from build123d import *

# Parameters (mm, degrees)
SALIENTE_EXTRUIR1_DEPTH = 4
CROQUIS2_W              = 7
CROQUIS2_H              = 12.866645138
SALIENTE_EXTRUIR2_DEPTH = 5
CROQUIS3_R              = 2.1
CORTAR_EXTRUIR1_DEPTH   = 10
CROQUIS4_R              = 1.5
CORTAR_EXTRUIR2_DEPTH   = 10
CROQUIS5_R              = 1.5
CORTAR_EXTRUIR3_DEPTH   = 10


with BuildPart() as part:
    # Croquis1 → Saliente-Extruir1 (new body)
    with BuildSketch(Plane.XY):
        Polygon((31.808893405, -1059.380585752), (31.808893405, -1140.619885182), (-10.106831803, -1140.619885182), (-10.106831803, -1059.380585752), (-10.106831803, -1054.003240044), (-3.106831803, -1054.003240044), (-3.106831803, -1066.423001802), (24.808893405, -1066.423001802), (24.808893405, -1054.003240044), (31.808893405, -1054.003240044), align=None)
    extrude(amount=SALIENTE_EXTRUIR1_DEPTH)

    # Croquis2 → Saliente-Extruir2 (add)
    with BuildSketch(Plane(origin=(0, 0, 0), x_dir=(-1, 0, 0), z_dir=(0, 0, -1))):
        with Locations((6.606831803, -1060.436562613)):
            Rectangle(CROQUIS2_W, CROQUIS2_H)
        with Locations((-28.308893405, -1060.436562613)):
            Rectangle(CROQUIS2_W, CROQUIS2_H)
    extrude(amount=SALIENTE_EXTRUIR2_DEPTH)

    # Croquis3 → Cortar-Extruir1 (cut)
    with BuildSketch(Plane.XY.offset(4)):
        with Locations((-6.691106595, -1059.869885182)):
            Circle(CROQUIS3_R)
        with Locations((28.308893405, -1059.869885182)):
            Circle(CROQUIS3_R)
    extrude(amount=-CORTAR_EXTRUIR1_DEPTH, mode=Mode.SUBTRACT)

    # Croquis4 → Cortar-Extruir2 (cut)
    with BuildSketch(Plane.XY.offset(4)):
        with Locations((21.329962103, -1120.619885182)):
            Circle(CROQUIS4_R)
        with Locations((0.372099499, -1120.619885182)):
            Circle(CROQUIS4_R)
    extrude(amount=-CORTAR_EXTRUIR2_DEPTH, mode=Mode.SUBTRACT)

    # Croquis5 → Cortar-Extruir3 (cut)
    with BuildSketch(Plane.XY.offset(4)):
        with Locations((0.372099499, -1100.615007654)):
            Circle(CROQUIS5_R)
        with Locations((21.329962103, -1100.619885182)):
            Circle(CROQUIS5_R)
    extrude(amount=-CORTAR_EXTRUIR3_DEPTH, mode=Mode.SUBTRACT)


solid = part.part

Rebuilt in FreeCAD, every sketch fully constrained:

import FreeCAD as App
import Part
import Sketcher
from FreeCAD import Vector

doc = App.newDocument("Part")
body = doc.addObject("PartDesign::Body", "Body")

# Sketch on XY plane
sketch1 = doc.addObject("Sketcher::SketchObject", "Sketch")
body.addObject(sketch1)
sketch1.AttachmentSupport = (doc.XY_Plane, [""])
sketch1.MapMode = "FlatFace"
sketch1.addGeometry([
    Part.LineSegment(Vector(31.808893, -1140.619885, 0), Vector(31.808893, -1054.00324, 0)),  # 0
    Part.LineSegment(Vector(31.808893, -1054.00324, 0), Vector(24.808893, -1054.00324, 0)),  # 1
    Part.LineSegment(Vector(24.808893, -1054.00324, 0), Vector(24.808893, -1066.423002, 0)),  # 2
    Part.LineSegment(Vector(24.808893, -1066.423002, 0), Vector(-3.106832, -1066.423002, 0)),  # 3
    Part.LineSegment(Vector(-3.106832, -1066.423002, 0), Vector(-3.106832, -1054.00324, 0)),  # 4
    Part.LineSegment(Vector(-3.106832, -1054.00324, 0), Vector(-10.106832, -1054.00324, 0)),  # 5
    Part.LineSegment(Vector(-10.106832, -1054.00324, 0), Vector(-10.106832, -1140.619885, 0)),  # 6
    Part.LineSegment(Vector(-10.106832, -1140.619885, 0), Vector(31.808893, -1140.619885, 0)),  # 7
], False)
sketch1.addConstraint([
    Sketcher.Constraint("Coincident", 0, 2, 1, 1),
    Sketcher.Constraint("Coincident", 1, 2, 2, 1),
    Sketcher.Constraint("Coincident", 2, 2, 3, 1),
    Sketcher.Constraint("Coincident", 3, 2, 4, 1),
    Sketcher.Constraint("Coincident", 4, 2, 5, 1),
    Sketcher.Constraint("Coincident", 5, 2, 6, 1),
    Sketcher.Constraint("Coincident", 6, 2, 7, 1),
    Sketcher.Constraint("Coincident", 7, 2, 0, 1),
    Sketcher.Constraint("Vertical", 0),
    Sketcher.Constraint("Horizontal", 1),
    Sketcher.Constraint("Vertical", 2),
    Sketcher.Constraint("Horizontal", 3),
    Sketcher.Constraint("Vertical", 4),
    Sketcher.Constraint("Horizontal", 5),
    Sketcher.Constraint("Vertical", 6),
    Sketcher.Constraint("Horizontal", 7),
    Sketcher.Constraint("Horizontal", 1, 2, 4, 2),
    Sketcher.Constraint("Equal", 1, 5),
    Sketcher.Constraint("DistanceX", 1, 2, 1, 1, 7.0),
    Sketcher.Constraint("DistanceY", 2, 2, -1, 1, 1066.423002),
    Sketcher.Constraint("DistanceY", 2, 2, 2, 1, 12.419762),
    Sketcher.Constraint("DistanceX", 3, 2, 3, 1, 27.915725),
    Sketcher.Constraint("DistanceY", 0, 1, 0, 2, 86.616645),
    Sketcher.Constraint("DistanceX", 3, 2, -1, 1, 3.106832),
])
pad1 = doc.addObject("PartDesign::Pad", "Pad")
body.addObject(pad1)
pad1.Profile = sketch1
pad1.Length = 4

# Sketch on XY plane
sketch2 = doc.addObject("Sketcher::SketchObject", "Sketch001")
body.addObject(sketch2)
sketch2.AttachmentSupport = (doc.XY_Plane, [""])
sketch2.MapMode = "FlatFace"
sketch2.addGeometry([
    Part.LineSegment(Vector(-3.106832, -1054.00324, 0), Vector(-3.106832, -1066.869885, 0)),  # 0
    Part.LineSegment(Vector(-3.106832, -1066.869885, 0), Vector(-10.106832, -1066.869885, 0)),  # 1
    Part.LineSegment(Vector(-10.106832, -1066.869885, 0), Vector(-10.106832, -1054.00324, 0)),  # 2
    Part.LineSegment(Vector(-10.106832, -1054.00324, 0), Vector(-3.106832, -1054.00324, 0)),  # 3
    Part.LineSegment(Vector(31.808893, -1054.00324, 0), Vector(31.808893, -1066.869885, 0)),  # 4
    Part.LineSegment(Vector(31.808893, -1066.869885, 0), Vector(24.808893, -1066.869885, 0)),  # 5
    Part.LineSegment(Vector(24.808893, -1066.869885, 0), Vector(24.808893, -1054.00324, 0)),  # 6
    Part.LineSegment(Vector(24.808893, -1054.00324, 0), Vector(31.808893, -1054.00324, 0)),  # 7
], False)
sketch2.addConstraint([
    Sketcher.Constraint("Coincident", 0, 2, 1, 1),
    Sketcher.Constraint("Coincident", 1, 2, 2, 1),
    Sketcher.Constraint("Coincident", 2, 2, 3, 1),
    Sketcher.Constraint("Coincident", 3, 2, 0, 1),
    Sketcher.Constraint("Coincident", 4, 2, 5, 1),
    Sketcher.Constraint("Coincident", 5, 2, 6, 1),
    Sketcher.Constraint("Coincident", 6, 2, 7, 1),
    Sketcher.Constraint("Coincident", 7, 2, 4, 1),
    Sketcher.Constraint("Vertical", 0),
    Sketcher.Constraint("Horizontal", 1),
    Sketcher.Constraint("Vertical", 2),
    Sketcher.Constraint("Horizontal", 3),
    Sketcher.Constraint("Vertical", 4),
    Sketcher.Constraint("Horizontal", 5),
    Sketcher.Constraint("Vertical", 6),
    Sketcher.Constraint("Horizontal", 7),
    Sketcher.Constraint("Horizontal", 1, 2, 4, 2),
    Sketcher.Constraint("Horizontal", 3, 2, 6, 2),
    Sketcher.Constraint("Equal", 3, 5),
    Sketcher.Constraint("DistanceX", 1, 2, 1, 1, 7.0),
    Sketcher.Constraint("DistanceY", 0, 2, 0, 1, 12.866645),
    Sketcher.Constraint("DistanceX", 0, 2, -1, 1, 3.106832),
    Sketcher.Constraint("DistanceY", 2, 2, -1, 1, 1054.00324),
    Sketcher.Constraint("DistanceX", -1, 1, 4, 2, 31.808893),
])
pad2 = doc.addObject("PartDesign::Pad", "Pad001")
body.addObject(pad2)
pad2.Profile = sketch2
pad2.Length = 5
pad2.Reversed = True

# Sketch on XY plane
sketch3 = doc.addObject("Sketcher::SketchObject", "Sketch002")
body.addObject(sketch3)
sketch3.AttachmentSupport = (doc.XY_Plane, [""])
sketch3.MapMode = "FlatFace"
sketch3.AttachmentOffset = App.Placement(Vector(0, 0, 4), App.Rotation())
sketch3.addGeometry([
    Part.Circle(Vector(-6.691107, -1059.869885, 0), Vector(0, 0, 1), 2.1),
    Part.Circle(Vector(28.308893, -1059.869885, 0), Vector(0, 0, 1), 2.1),
], False)
sketch3.addConstraint([
    Sketcher.Constraint("Equal", 0, 1),
    Sketcher.Constraint("Horizontal", 0, 3, 1, 3),
    Sketcher.Constraint("Diameter", 0, 4.2),
    Sketcher.Constraint("DistanceX", 0, 3, 1, 3, 35.0),
    Sketcher.Constraint("DistanceX", 0, 3, -1, 1, 6.691107),
    Sketcher.Constraint("DistanceY", 0, 3, -1, 1, 1059.869885),
])
pocket1 = doc.addObject("PartDesign::Pocket", "Pocket")
body.addObject(pocket1)
pocket1.Profile = sketch3
pocket1.Length = 10

# Sketch on XY plane
sketch4 = doc.addObject("Sketcher::SketchObject", "Sketch003")
body.addObject(sketch4)
sketch4.AttachmentSupport = (doc.XY_Plane, [""])
sketch4.MapMode = "FlatFace"
sketch4.AttachmentOffset = App.Placement(Vector(0, 0, 4), App.Rotation())
sketch4.addGeometry([
    Part.Circle(Vector(21.329962, -1120.619885, 0), Vector(0, 0, 1), 1.5),
    Part.Circle(Vector(0.372099, -1120.619885, 0), Vector(0, 0, 1), 1.5),
], False)
sketch4.addConstraint([
    Sketcher.Constraint("Equal", 0, 1),
    Sketcher.Constraint("Horizontal", 0, 3, 1, 3),
    Sketcher.Constraint("Diameter", 0, 3.0),
    Sketcher.Constraint("DistanceX", -1, 1, 1, 3, 0.372099),
    Sketcher.Constraint("DistanceX", -1, 1, 0, 3, 21.329962),
    Sketcher.Constraint("DistanceY", 0, 3, -1, 1, 1120.619885),
])
pocket2 = doc.addObject("PartDesign::Pocket", "Pocket001")
body.addObject(pocket2)
pocket2.Profile = sketch4
pocket2.Length = 10

# Sketch on XY plane
sketch5 = doc.addObject("Sketcher::SketchObject", "Sketch004")
body.addObject(sketch5)
sketch5.AttachmentSupport = (doc.XY_Plane, [""])
sketch5.MapMode = "FlatFace"
sketch5.AttachmentOffset = App.Placement(Vector(0, 0, 4), App.Rotation())
sketch5.addGeometry([
    Part.Circle(Vector(0.372099, -1100.615008, 0), Vector(0, 0, 1), 1.5),
    Part.Circle(Vector(21.329962, -1100.619885, 0), Vector(0, 0, 1), 1.5),
], False)
sketch5.addConstraint([
    Sketcher.Constraint("Equal", 0, 1),
    Sketcher.Constraint("Diameter", 0, 3.0),
    Sketcher.Constraint("DistanceX", -1, 1, 0, 3, 0.372099),
    Sketcher.Constraint("DistanceY", 0, 3, -1, 1, 1100.615008),
    Sketcher.Constraint("DistanceX", -1, 1, 1, 3, 21.329962),
    Sketcher.Constraint("DistanceY", 1, 3, -1, 1, 1100.619885),
])
pocket3 = doc.addObject("PartDesign::Pocket", "Pocket002")
body.addObject(pocket3)
pocket3.Profile = sketch5
pocket3.Length = 10

doc.recompute()
